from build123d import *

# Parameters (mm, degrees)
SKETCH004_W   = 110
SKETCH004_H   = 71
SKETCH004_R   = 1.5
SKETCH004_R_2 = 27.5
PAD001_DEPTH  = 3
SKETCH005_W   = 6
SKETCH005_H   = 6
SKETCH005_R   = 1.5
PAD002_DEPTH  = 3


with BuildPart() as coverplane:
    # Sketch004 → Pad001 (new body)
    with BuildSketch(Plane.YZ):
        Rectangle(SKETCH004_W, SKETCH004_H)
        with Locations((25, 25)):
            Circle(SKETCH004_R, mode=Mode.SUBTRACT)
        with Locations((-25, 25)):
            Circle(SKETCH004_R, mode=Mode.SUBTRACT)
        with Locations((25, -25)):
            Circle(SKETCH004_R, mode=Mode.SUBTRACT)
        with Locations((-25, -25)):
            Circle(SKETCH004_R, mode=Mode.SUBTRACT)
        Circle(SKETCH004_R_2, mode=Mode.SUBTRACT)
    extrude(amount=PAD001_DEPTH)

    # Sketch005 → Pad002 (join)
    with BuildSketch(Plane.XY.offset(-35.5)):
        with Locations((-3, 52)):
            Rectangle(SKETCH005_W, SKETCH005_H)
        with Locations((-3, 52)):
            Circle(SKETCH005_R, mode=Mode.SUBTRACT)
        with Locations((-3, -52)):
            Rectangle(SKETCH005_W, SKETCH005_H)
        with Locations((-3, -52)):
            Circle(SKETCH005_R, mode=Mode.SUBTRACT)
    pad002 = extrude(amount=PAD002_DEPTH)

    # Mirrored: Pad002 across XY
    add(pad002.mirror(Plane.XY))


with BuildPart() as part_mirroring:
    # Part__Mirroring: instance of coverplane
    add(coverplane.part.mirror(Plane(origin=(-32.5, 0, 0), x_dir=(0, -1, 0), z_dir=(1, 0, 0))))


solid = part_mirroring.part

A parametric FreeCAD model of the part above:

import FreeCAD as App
import Part
import Sketcher

V = App.Vector
Q = App.Units.Quantity

doc = App.newDocument("Part")
params = doc.addObject("Spreadsheet::Sheet", "Params")
for row, (alias, value) in enumerate([
    ("sketch1_diameter", "3 mm"),
    ("sketch1_diameter2", "55 mm"),
    ("sketch1_width", "110 mm"),
    ("sketch1_height", "71 mm"),
    ("pad1_length", "3 mm"),
    ("sketch2_diameter", "3 mm"),
    ("sketch2_width", "6 mm"),
    ("pad2_length", "3 mm"),
], start=1):
    params.set(f"A{row}", alias)
    params.set(f"B{row}", "=" + value)
    params.setAlias(f"B{row}", alias)

body = doc.addObject("PartDesign::Body", "Body")

# Sketch on YZ plane
sketch1 = body.newObject("Sketcher::SketchObject", "Sketch")
sketch1.AttachmentSupport = (doc.getObject("YZ_Plane"), [""])
sketch1.MapMode = "FlatFace"
sketch1.addGeometry([
    Part.LineSegment(V(-55, 35.5, 0), V(-55, -35.5, 0)),  # 0
    Part.LineSegment(V(-55, -35.5, 0), V(55, -35.5, 0)),  # 1
    Part.LineSegment(V(55, -35.5, 0), V(55, 35.5, 0)),  # 2
    Part.LineSegment(V(55, 35.5, 0), V(-55, 35.5, 0)),  # 3
    Part.Circle(V(-25, -25, 0), V(0, 0, 1), 1.5),  # 4
    Part.Circle(V(25, -25, 0), V(0, 0, 1), 1.5),  # 5
    Part.Circle(V(-25, 25, 0), V(0, 0, 1), 1.5),  # 6
    Part.Circle(V(0, 0, 0), V(0, 0, 1), 27.5),  # 7
    Part.Circle(V(25, 25, 0), V(0, 0, 1), 1.5),  # 8
], False)
sketch1.addConstraint([
    Sketcher.Constraint("Coincident", 0, 2, 1, 1),
    Sketcher.Constraint("Coincident", 1, 2, 2, 1),
    Sketcher.Constraint("Coincident", 2, 2, 3, 1),
    Sketcher.Constraint("Coincident", 3, 2, 0, 1),
    Sketcher.Constraint("Vertical", 0),
    Sketcher.Constraint("Horizontal", 1),
    Sketcher.Constraint("Vertical", 2),
    Sketcher.Constraint("Horizontal", 3),
    Sketcher.Constraint("Coincident", 7, 3, -1, 1),
    Sketcher.Constraint("Equal", 4, 5),
    Sketcher.Constraint("Equal", 5, 6),
    Sketcher.Constraint("Equal", 6, 8),
    Sketcher.Constraint("Symmetric", 5, 3, 6, 3, -1, 1),
    Sketcher.Constraint("Symmetric", 4, 3, 8, 3, -1, 1),
    Sketcher.Constraint("Symmetric", 0, 2, 2, 2, -1, 1),
    Sketcher.Constraint("Symmetric", 4, 3, 5, 3, -2),
    Sketcher.Constraint("Diameter", 4, Q("3 mm")),
    Sketcher.Constraint("Diameter", 7, Q("55 mm")),
    Sketcher.Constraint("DistanceX", 1, 1, 1, 2, Q("110 mm")),
    Sketcher.Constraint("DistanceY", 0, 2, 0, 1, Q("71 mm")),
    Sketcher.Constraint("DistanceX", 4, 3, -1, 1, Q("25 mm")),
    Sketcher.Constraint("DistanceY", 4, 3, -1, 1, Q("25 mm")),
])
sketch1.setExpression("Constraints[16]", "Params.sketch1_diameter")
sketch1.setExpression("Constraints[17]", "Params.sketch1_diameter2")
sketch1.setExpression("Constraints[18]", "Params.sketch1_width")
sketch1.setExpression("Constraints[19]", "Params.sketch1_height")
pad1 = body.newObject("PartDesign::Pad", "Pad")
pad1.Profile = sketch1
pad1.setExpression("Length", "Params.pad1_length")

# Sketch on XY plane
sketch2 = body.newObject("Sketcher::SketchObject", "Sketch001")
sketch2.AttachmentSupport = (doc.getObject("XY_Plane"), [""])
sketch2.MapMode = "FlatFace"
sketch2.AttachmentOffset = App.Placement(V(0, 0, -35.5), App.Rotation())
sketch2.addGeometry([
    Part.LineSegment(V(-6, 55, 0), V(-6, 49, 0)),  # 0
    Part.LineSegment(V(-6, 49, 0), V(0, 49, 0)),  # 1
    Part.LineSegment(V(0, 49, 0), V(0, 55, 0)),  # 2
    Part.LineSegment(V(0, 55, 0), V(-6, 55, 0)),  # 3
    Part.Circle(V(-3, 52, 0), V(0, 0, 1), 1.5),  # 4
    Part.LineSegment(V(-6, -49, 0), V(-6, -55, 0)),  # 5
    Part.LineSegment(V(-6, -55, 0), V(0, -55, 0)),  # 6
    Part.LineSegment(V(0, -55, 0), V(0, -49, 0)),  # 7
    Part.LineSegment(V(0, -49, 0), V(-6, -49, 0)),  # 8
    Part.Circle(V(-3, -52, 0), V(0, 0, 1), 1.5),  # 9
], False)
sketch2.addConstraint([
    Sketcher.Constraint("Coincident", 0, 2, 1, 1),
    Sketcher.Constraint("Coincident", 1, 2, 2, 1),
    Sketcher.Constraint("Coincident", 2, 2, 3, 1),
    Sketcher.Constraint("Coincident", 3, 2, 0, 1),
    Sketcher.Constraint("Coincident", 5, 2, 6, 1),
    Sketcher.Constraint("Coincident", 6, 2, 7, 1),
    Sketcher.Constraint("Coincident", 7, 2, 8, 1),
    Sketcher.Constraint("Coincident", 8, 2, 5, 1),
    Sketcher.Constraint("Vertical", 0),
    Sketcher.Constraint("Horizontal", 1),
    Sketcher.Constraint("Vertical", 2),
    Sketcher.Constraint("Horizontal", 3),
    Sketcher.Constraint("Vertical", 5),
    Sketcher.Constraint("Horizontal", 6),
    Sketcher.Constraint("Vertical", 7),
    Sketcher.Constraint("Horizontal", 8),
    Sketcher.Constraint("Equal", 4, 9),
    Sketcher.Constraint("Symmetric", 2, 2, 6, 2, -1, 1),
    Sketcher.Constraint("Symmetric", 4, 3, 9, 3, -1),
    Sketcher.Constraint("Symmetric", 1, 2, 7, 2, -1),
    Sketcher.Constraint("Vertical", 3, 2, 5, 2),
    Sketcher.Constraint("Equal", 8, 0),
    Sketcher.Constraint("Diameter", 4, Q("3 mm")),
    Sketcher.Constraint("DistanceX", 1, 1, 1, 2, Q("6 mm")),
    Sketcher.Constraint("DistanceX", 4, 3, -1, 1, Q("3 mm")),
    Sketcher.Constraint("DistanceY", -1, 1, 4, 3, Q("52 mm")),
    Sketcher.Constraint("DistanceY", -1, 1, 0, 2, Q("49 mm")),
])
sketch2.setExpression("Constraints[22]", "Params.sketch2_diameter")
sketch2.setExpression("Constraints[23]", "Params.sketch2_width")
pad2 = body.newObject("PartDesign::Pad", "Pad001")
pad2.Profile = sketch2
pad2.setExpression("Length", "Params.pad2_length")
doc.recompute()

mirrored = body.newObject("PartDesign::Mirrored", "Mirrored")
mirrored.Originals = [pad2]
mirrored.MirrorPlane = (doc.getObject("XY_Plane"), [""])
body.Tip = mirrored
body2 = doc.addObject("PartDesign::Body", "Body001")
doc.recompute()

mirroring = doc.addObject("Part::Mirroring", "Mirroring")
mirroring.Source = body
mirroring.Base = V(-32.5, 0, 0)
mirroring.Normal = V(1, 0, 0)
body2.BaseFeature = mirroring
doc.recompute()
body.Visibility = False
mirroring.Visibility = False

doc.recompute()
